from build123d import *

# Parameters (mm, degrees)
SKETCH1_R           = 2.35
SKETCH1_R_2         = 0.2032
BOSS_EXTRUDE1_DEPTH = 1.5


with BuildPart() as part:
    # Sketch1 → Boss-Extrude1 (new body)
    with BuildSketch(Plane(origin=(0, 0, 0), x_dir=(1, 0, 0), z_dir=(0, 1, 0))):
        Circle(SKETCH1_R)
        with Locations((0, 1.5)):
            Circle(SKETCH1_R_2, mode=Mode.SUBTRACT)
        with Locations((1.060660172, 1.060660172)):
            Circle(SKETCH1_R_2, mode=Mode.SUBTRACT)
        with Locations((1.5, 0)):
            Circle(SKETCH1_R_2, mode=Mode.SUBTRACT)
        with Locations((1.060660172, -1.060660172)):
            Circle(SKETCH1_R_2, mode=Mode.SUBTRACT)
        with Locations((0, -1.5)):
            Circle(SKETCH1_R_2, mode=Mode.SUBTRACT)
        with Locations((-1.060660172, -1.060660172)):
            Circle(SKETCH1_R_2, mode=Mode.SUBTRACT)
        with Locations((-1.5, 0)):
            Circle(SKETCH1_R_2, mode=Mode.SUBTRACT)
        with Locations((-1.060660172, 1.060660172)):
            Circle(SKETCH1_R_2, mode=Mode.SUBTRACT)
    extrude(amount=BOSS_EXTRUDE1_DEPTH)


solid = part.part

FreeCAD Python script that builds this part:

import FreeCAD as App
import Part
import Sketcher
from FreeCAD import Vector
Q = App.Units.Quantity

doc = App.newDocument("Part")
body = doc.addObject("PartDesign::Body", "Body")

# Sketch on XZ plane
sketch1 = doc.addObject("Sketcher::SketchObject", "Sketch")
body.addObject(sketch1)
sketch1.AttachmentSupport = (doc.XZ_Plane, [""])
sketch1.MapMode = "FlatFace"
sketch1.addGeometry([
    Part.Circle(Vector(0, 0, 0), Vector(0, 0, 1), 2.35),  # 0
    Part.Circle(Vector(-1.06, 1.06, 0), Vector(0, 0, 1), 0.2),  # 1
    Part.Circle(Vector(0, 1.5, 0), Vector(0, 0, 1), 0.2),  # 2
    Part.Circle(Vector(1.06, 1.06, 0), Vector(0, 0, 1), 0.2),  # 3
    Part.Circle(Vector(-1.5, 0, 0), Vector(0, 0, 1), 0.2),  # 4
    Part.Circle(Vector(-1.06, -1.06, 0), Vector(0, 0, 1), 0.2),  # 5
    Part.Circle(Vector(1.5, 0, 0), Vector(0, 0, 1), 0.2),  # 6
    Part.Circle(Vector(0, -1.5, 0), Vector(0, 0, 1), 0.2),  # 7
    Part.Circle(Vector(1.06, -1.06, 0), Vector(0, 0, 1), 0.2),  # 8
], False)
sketch1.addConstraint([
    Sketcher.Constraint("Coincident", 0, 3, -1, 1),
    Sketcher.Constraint("Equal", 1, 2),
    Sketcher.Constraint("Equal", 2, 3),
    Sketcher.Constraint("Equal", 3, 4),
    Sketcher.Constraint("Equal", 4, 5),
    Sketcher.Constraint("Equal", 5, 6),
    Sketcher.Constraint("Equal", 6, 7),
    Sketcher.Constraint("Equal", 7, 8),
    Sketcher.Constraint("Symmetric", 3, 3, 5, 3, -1, 1),
    Sketcher.Constraint("Symmetric", 4, 3, 6, 3, -1, 1),
    Sketcher.Constraint("Symmetric", 2, 3, 7, 3, -1, 1),
    Sketcher.Constraint("Symmetric", 1, 3, 8, 3, -1, 1),
    Sketcher.Constraint("Symmetric", 1, 3, 3, 3, -2),
    Sketcher.Constraint("PointOnObject", 2, 3, -2),
    Sketcher.Constraint("PointOnObject", 4, 3, -1),
    Sketcher.Constraint("Diameter", 0, Q("4.7 mm")),
    Sketcher.Constraint("Diameter", 1, Q("0.4064 mm")),
    Sketcher.Constraint("DistanceY", -1, 1, 2, 3, Q("1.5 mm")),
    Sketcher.Constraint("DistanceX", 4, 3, -1, 1, Q("1.5 mm")),
    Sketcher.Constraint("DistanceX", 1, 3, -1, 1, Q("1.06066 mm")),
    Sketcher.Constraint("DistanceY", -1, 1, 1, 3, Q("1.06066 mm")),
])
pad1 = doc.addObject("PartDesign::Pad", "Pad")
body.addObject(pad1)
pad1.Profile = sketch1
pad1.Length = 1.5
pad1.Reversed = True

doc.recompute()
